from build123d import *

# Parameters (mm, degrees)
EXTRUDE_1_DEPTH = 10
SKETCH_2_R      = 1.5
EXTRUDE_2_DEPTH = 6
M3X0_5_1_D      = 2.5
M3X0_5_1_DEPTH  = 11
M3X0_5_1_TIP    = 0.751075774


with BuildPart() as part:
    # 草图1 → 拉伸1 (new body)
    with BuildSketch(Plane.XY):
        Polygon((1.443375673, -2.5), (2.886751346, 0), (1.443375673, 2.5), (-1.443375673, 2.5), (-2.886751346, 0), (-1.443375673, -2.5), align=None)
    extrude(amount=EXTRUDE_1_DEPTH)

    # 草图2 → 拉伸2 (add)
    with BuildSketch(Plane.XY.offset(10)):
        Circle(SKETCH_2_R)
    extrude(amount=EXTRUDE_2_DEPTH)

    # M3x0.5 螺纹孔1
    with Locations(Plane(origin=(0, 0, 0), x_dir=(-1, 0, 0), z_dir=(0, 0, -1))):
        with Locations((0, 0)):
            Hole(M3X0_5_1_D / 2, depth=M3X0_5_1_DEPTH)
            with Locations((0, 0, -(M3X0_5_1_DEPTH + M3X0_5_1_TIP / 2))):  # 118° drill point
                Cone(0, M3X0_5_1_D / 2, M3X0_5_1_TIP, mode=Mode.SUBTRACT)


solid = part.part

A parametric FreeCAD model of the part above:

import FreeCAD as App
import Part
import Sketcher

V = App.Vector
Q = App.Units.Quantity

doc = App.newDocument("Part")
body = doc.addObject("PartDesign::Body", "Body")

# Sketch on XY plane
sketch1 = body.newObject("Sketcher::SketchObject", "Sketch")
sketch1.AttachmentSupport = (doc.getObject("XY_Plane"), [""])
sketch1.MapMode = "FlatFace"
sketch1.addGeometry(Part.LineSegment(V(1.443376, -2.5, 0), V(2.886751, 0, 0)), False)
sketch1.addGeometry(Part.LineSegment(V(2.886751, 0, 0), V(1.443376, 2.5, 0)), False)
sketch1.addGeometry(Part.LineSegment(V(1.443376, 2.5, 0), V(-1.443376, 2.5, 0)), False)
sketch1.addGeometry(Part.LineSegment(V(-1.443376, 2.5, 0), V(-2.886751, 0, 0)), False)
sketch1.addGeometry(Part.LineSegment(V(-2.886751, 0, 0), V(-1.443376, -2.5, 0)), False)
sketch1.addGeometry(Part.LineSegment(V(-1.443376, -2.5, 0), V(1.443376, -2.5, 0)), False)
sketch1.addConstraint(Sketcher.Constraint("Coincident", 0, 2, 1, 1))
sketch1.addConstraint(Sketcher.Constraint("Coincident", 1, 2, 2, 1))
sketch1.addConstraint(Sketcher.Constraint("Coincident", 2, 2, 3, 1))
sketch1.addConstraint(Sketcher.Constraint("Coincident", 3, 2, 4, 1))
sketch1.addConstraint(Sketcher.Constraint("Coincident", 4, 2, 5, 1))
sketch1.addConstraint(Sketcher.Constraint("Coincident", 5, 2, 0, 1))
sketch1.addConstraint(Sketcher.Constraint("Horizontal", 2))
sketch1.addConstraint(Sketcher.Constraint("Horizontal", 5))
sketch1.addConstraint(Sketcher.Constraint("Symmetric", 0, 2, 3, 2, -1, 1))
sketch1.addConstraint(Sketcher.Constraint("Symmetric", 1, 2, 4, 2, -1, 1))
sketch1.addConstraint(Sketcher.Constraint("PointOnObject", 0, 2, -1))
sketch1.addConstraint(Sketcher.Constraint("Parallel", 0, 3))
sketch1.addConstraint(Sketcher.Constraint("Vertical", 2, 2, 4, 2))
sketch1.addConstraint(Sketcher.Constraint("Angle", 0, Q("60 deg")))
sketch1.addConstraint(Sketcher.Constraint("DistanceY", 4, 2, 2, 2, 5.0))
sketch1.addConstraint(Sketcher.Constraint("DistanceX", 2, 2, 2, 1, 2.886751))
pad1 = body.newObject("PartDesign::Pad", "Pad")
pad1.Profile = sketch1
pad1.Length = 10

# Sketch on XY plane
sketch2 = body.newObject("Sketcher::SketchObject", "Sketch001")
sketch2.AttachmentSupport = (doc.getObject("XY_Plane"), [""])
sketch2.MapMode = "FlatFace"
sketch2.AttachmentOffset = App.Placement(V(0, 0, 10), App.Rotation())
sketch2.addGeometry(Part.Circle(V(0, 0, 0), V(0, 0, 1), 1.5), False)
sketch2.addConstraint(Sketcher.Constraint("Coincident", 0, 3, -1, 1))
sketch2.addConstraint(Sketcher.Constraint("Diameter", 0, 3.0))
pad2 = body.newObject("PartDesign::Pad", "Pad001")
pad2.Profile = sketch2
pad2.Length = 6

# Sketch on XY plane
sketch3 = body.newObject("Sketcher::SketchObject", "Sketch002")
sketch3.AttachmentSupport = (doc.getObject("XY_Plane"), [""])
sketch3.MapMode = "FlatFace"
sketch3.addGeometry(Part.Circle(V(0, 0, 0), V(0, 0, 1), 1.25), False)
sketch3.addConstraint(Sketcher.Constraint("Coincident", 0, 3, -1, 1))
sketch3.addConstraint(Sketcher.Constraint("Diameter", 0, 2.5))
doc.recompute()
hole = body.newObject("PartDesign::Hole", "Hole")
hole.Profile = sketch3
hole.ThreadType = "None"
hole.Diameter = 2.5
hole.DepthType = "Dimension"
hole.Depth = 11
hole.DrillPoint = "Angled"
hole.DrillPointAngle = 118
hole.Reversed = True

doc.recompute()
